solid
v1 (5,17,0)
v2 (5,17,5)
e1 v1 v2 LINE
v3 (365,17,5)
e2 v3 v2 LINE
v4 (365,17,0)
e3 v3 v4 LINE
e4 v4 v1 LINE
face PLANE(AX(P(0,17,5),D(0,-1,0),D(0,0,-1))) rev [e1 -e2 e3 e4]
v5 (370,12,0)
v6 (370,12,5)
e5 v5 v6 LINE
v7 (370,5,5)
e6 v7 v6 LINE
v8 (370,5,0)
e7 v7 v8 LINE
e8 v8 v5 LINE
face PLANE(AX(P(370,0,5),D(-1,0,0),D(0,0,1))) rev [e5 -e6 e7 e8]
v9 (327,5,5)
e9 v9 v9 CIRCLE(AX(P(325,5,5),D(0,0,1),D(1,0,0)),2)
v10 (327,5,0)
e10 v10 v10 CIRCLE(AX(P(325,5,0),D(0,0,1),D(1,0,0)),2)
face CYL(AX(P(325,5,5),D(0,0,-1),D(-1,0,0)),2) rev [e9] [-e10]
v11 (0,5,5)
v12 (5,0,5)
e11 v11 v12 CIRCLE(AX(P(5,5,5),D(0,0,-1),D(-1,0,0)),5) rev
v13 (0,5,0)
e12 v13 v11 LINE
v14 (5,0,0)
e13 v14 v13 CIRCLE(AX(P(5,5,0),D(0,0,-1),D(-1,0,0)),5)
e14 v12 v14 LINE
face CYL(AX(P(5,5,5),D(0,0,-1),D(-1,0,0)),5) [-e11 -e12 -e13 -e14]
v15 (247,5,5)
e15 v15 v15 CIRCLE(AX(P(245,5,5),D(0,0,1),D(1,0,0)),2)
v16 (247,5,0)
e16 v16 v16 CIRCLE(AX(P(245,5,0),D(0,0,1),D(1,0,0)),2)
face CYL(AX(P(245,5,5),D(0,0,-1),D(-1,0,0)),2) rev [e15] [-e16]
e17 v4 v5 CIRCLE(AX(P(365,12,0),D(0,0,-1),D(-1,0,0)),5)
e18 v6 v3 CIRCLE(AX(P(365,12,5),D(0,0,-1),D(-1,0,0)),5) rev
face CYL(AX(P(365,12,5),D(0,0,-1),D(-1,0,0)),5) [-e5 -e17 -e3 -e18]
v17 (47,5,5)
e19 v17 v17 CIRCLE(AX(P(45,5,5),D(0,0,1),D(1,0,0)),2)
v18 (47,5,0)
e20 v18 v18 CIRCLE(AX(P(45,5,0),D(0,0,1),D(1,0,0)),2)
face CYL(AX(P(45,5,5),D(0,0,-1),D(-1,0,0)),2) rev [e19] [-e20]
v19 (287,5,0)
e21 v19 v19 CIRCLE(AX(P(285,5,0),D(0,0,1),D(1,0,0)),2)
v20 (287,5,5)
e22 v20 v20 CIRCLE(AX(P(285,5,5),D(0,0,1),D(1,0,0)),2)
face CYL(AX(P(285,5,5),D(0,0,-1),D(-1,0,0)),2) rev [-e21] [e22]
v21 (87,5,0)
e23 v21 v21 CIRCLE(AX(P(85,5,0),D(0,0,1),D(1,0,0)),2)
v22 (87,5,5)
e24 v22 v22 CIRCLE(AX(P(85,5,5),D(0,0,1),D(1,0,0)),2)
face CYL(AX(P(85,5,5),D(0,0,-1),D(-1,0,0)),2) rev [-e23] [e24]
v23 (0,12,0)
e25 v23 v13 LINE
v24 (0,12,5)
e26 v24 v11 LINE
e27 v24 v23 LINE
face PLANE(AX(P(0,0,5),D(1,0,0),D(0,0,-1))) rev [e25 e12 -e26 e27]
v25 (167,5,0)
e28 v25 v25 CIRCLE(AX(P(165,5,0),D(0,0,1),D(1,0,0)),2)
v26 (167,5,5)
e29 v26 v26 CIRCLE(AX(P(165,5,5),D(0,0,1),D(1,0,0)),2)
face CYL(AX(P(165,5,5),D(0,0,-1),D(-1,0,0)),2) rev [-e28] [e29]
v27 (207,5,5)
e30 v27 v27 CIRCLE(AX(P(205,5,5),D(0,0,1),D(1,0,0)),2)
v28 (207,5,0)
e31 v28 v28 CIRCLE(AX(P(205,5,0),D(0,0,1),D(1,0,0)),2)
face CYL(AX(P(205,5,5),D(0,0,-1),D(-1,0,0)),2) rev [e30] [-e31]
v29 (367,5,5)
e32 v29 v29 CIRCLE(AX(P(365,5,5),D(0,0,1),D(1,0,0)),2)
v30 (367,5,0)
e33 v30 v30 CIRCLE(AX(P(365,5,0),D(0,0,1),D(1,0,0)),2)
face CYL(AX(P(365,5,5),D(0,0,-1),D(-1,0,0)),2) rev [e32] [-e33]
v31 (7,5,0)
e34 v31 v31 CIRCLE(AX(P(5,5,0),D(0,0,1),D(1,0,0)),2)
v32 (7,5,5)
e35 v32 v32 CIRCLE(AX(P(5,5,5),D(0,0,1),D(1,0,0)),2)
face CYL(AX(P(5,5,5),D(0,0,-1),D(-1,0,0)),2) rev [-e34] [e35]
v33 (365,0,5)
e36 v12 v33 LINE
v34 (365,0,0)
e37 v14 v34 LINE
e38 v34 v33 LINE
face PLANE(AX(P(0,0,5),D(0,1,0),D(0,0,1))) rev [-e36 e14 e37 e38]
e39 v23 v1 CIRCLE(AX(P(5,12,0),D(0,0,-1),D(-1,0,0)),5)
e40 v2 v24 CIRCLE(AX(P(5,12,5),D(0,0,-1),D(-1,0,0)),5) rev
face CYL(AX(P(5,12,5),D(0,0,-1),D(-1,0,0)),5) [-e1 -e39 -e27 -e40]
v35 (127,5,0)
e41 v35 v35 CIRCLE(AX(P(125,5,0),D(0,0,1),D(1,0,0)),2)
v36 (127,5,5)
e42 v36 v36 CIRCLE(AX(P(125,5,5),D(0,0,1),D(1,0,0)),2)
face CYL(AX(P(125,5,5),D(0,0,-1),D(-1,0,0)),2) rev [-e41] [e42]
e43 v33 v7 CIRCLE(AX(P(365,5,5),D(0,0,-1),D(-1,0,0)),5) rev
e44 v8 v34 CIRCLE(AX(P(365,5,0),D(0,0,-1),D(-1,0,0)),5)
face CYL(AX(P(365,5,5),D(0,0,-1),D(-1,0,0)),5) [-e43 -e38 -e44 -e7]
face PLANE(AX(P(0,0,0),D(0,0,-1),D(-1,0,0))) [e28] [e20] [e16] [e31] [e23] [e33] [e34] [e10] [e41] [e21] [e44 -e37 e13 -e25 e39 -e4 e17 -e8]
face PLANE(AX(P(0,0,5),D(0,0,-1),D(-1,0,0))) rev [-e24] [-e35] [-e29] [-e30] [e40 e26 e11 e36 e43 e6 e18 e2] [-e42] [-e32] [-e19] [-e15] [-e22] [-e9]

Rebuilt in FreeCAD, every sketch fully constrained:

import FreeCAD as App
import Part
import Sketcher
Q = App.Units.Quantity


def edges_at(feature, points):
    """Names of the edges that pass closest to the given points."""
    edges = feature.Shape.Edges
    near = lambda p: min(range(len(edges)), key=lambda i: edges[i].distToShape(Part.Vertex(*p))[0])
    return sorted({f"Edge{near(p) + 1}" for p in points})

doc = App.newDocument("Part")
params = doc.addObject("Spreadsheet::Sheet", "Params")
for row, (alias, value) in enumerate([
    ("sketch1_diameter", "4 mm"),
    ("sketch1_width", "370 mm"),
    ("sketch1_height", "17 mm"),
    ("pad1_length", "5 mm"),
    ("fillet_radius", "5 mm"),
], start=1):
    params.set(f"A{row}", alias)
    params.set(f"B{row}", "=" + value)
    params.setAlias(f"B{row}", alias)

body = doc.addObject("PartDesign::Body", "Body")

sketch1 = doc.addObject("Sketcher::SketchObject", "Sketch")
body.addObject(sketch1)
sketch1.AttachmentSupport = (doc.XY_Plane, [""])
sketch1.MapMode = "FlatFace"
sketch1.addGeometry(Part.LineSegment(App.Vector(0, 17, 0), App.Vector(0, 0, 0)), False)
sketch1.addGeometry(Part.LineSegment(App.Vector(0, 0, 0), App.Vector(370, 0, 0)), False)
sketch1.addGeometry(Part.LineSegment(App.Vector(370, 0, 0), App.Vector(370, 17, 0)), False)
sketch1.addGeometry(Part.LineSegment(App.Vector(370, 17, 0), App.Vector(0, 17, 0)), False)
sketch1.addGeometry(Part.Circle(App.Vector(5, 5, 0), App.Vector(0, 0, 1), 2), False)
sketch1.addGeometry(Part.Circle(App.Vector(45, 5, 0), App.Vector(0, 0, 1), 2), False)
sketch1.addGeometry(Part.Circle(App.Vector(85, 5, 0), App.Vector(0, 0, 1), 2), False)
sketch1.addGeometry(Part.Circle(App.Vector(125, 5, 0), App.Vector(0, 0, 1), 2), False)
sketch1.addGeometry(Part.Circle(App.Vector(165, 5, 0), App.Vector(0, 0, 1), 2), False)
sketch1.addGeometry(Part.Circle(App.Vector(205, 5, 0), App.Vector(0, 0, 1), 2), False)
sketch1.addGeometry(Part.Circle(App.Vector(245, 5, 0), App.Vector(0, 0, 1), 2), False)
sketch1.addGeometry(Part.Circle(App.Vector(285, 5, 0), App.Vector(0, 0, 1), 2), False)
sketch1.addGeometry(Part.Circle(App.Vector(325, 5, 0), App.Vector(0, 0, 1), 2), False)
sketch1.addGeometry(Part.Circle(App.Vector(365, 5, 0), App.Vector(0, 0, 1), 2), False)
sketch1.addConstraint(Sketcher.Constraint("Coincident", 0, 2, 1, 1))
sketch1.addConstraint(Sketcher.Constraint("Coincident", 1, 2, 2, 1))
sketch1.addConstraint(Sketcher.Constraint("Coincident", 2, 2, 3, 1))
sketch1.addConstraint(Sketcher.Constraint("Coincident", 3, 2, 0, 1))
sketch1.addConstraint(Sketcher.Constraint("Vertical", 0))
sketch1.addConstraint(Sketcher.Constraint("Horizontal", 1))
sketch1.addConstraint(Sketcher.Constraint("Vertical", 2))
sketch1.addConstraint(Sketcher.Constraint("Horizontal", 3))
sketch1.addConstraint(Sketcher.Constraint("Coincident", 0, 2, -1, 1))
sketch1.addConstraint(Sketcher.Constraint("Equal", 4, 5))
sketch1.addConstraint(Sketcher.Constraint("Equal", 5, 6))
sketch1.addConstraint(Sketcher.Constraint("Equal", 6, 7))
sketch1.addConstraint(Sketcher.Constraint("Equal", 7, 8))
sketch1.addConstraint(Sketcher.Constraint("Equal", 8, 9))
sketch1.addConstraint(Sketcher.Constraint("Equal", 9, 10))
sketch1.addConstraint(Sketcher.Constraint("Equal", 10, 11))
sketch1.addConstraint(Sketcher.Constraint("Equal", 11, 12))
sketch1.addConstraint(Sketcher.Constraint("Equal", 12, 13))
sketch1.addConstraint(Sketcher.Constraint("Horizontal", 4, 3, 5, 3))
sketch1.addConstraint(Sketcher.Constraint("Horizontal", 5, 3, 6, 3))
sketch1.addConstraint(Sketcher.Constraint("Horizontal", 6, 3, 7, 3))
sketch1.addConstraint(Sketcher.Constraint("Horizontal", 7, 3, 8, 3))
sketch1.addConstraint(Sketcher.Constraint("Horizontal", 8, 3, 9, 3))
sketch1.addConstraint(Sketcher.Constraint("Horizontal", 9, 3, 10, 3))
sketch1.addConstraint(Sketcher.Constraint("Horizontal", 10, 3, 11, 3))
sketch1.addConstraint(Sketcher.Constraint("Horizontal", 11, 3, 12, 3))
sketch1.addConstraint(Sketcher.Constraint("Horizontal", 12, 3, 13, 3))
sketch1.addConstraint(Sketcher.Constraint("Diameter", 4, Q("4 mm")))
sketch1.addConstraint(Sketcher.Constraint("DistanceX", 1, 1, 1, 2, Q("370 mm")))
sketch1.addConstraint(Sketcher.Constraint("DistanceY", 0, 2, 0, 1, Q("17 mm")))
sketch1.addConstraint(Sketcher.Constraint("DistanceX", -1, 1, 4, 3, Q("5 mm")))
sketch1.addConstraint(Sketcher.Constraint("DistanceY", -1, 1, 4, 3, Q("5 mm")))
sketch1.addConstraint(Sketcher.Constraint("DistanceX", -1, 1, 5, 3, Q("45 mm")))
sketch1.addConstraint(Sketcher.Constraint("DistanceX", -1, 1, 6, 3, Q("85 mm")))
sketch1.addConstraint(Sketcher.Constraint("DistanceX", -1, 1, 7, 3, Q("125 mm")))
sketch1.addConstraint(Sketcher.Constraint("DistanceX", -1, 1, 8, 3, Q("165 mm")))
sketch1.addConstraint(Sketcher.Constraint("DistanceX", -1, 1, 9, 3, Q("205 mm")))
sketch1.addConstraint(Sketcher.Constraint("DistanceX", -1, 1, 10, 3, Q("245 mm")))
sketch1.addConstraint(Sketcher.Constraint("DistanceX", -1, 1, 11, 3, Q("285 mm")))
sketch1.addConstraint(Sketcher.Constraint("DistanceX", -1, 1, 12, 3, Q("325 mm")))
sketch1.addConstraint(Sketcher.Constraint("DistanceX", -1, 1, 13, 3, Q("365 mm")))
sketch1.setExpression("Constraints[27]", "Params.sketch1_diameter")
sketch1.setExpression("Constraints[28]", "Params.sketch1_width")
sketch1.setExpression("Constraints[29]", "Params.sketch1_height")
pad1 = doc.addObject("PartDesign::Pad", "Pad")
body.addObject(pad1)
pad1.Profile = sketch1
pad1.setExpression("Length", "Params.pad1_length")
doc.recompute()

fillet = doc.addObject("PartDesign::Fillet", "Fillet")
body.addObject(fillet)
fillet.Base = (pad1, edges_at(pad1, [
    (0, 17, 2.5),
    (370, 17, 2.5),
    (370, 0, 2.5),
    (0, 0, 2.5),
]))
fillet.setExpression("Radius", "Params.fillet_radius")

doc.recompute()
